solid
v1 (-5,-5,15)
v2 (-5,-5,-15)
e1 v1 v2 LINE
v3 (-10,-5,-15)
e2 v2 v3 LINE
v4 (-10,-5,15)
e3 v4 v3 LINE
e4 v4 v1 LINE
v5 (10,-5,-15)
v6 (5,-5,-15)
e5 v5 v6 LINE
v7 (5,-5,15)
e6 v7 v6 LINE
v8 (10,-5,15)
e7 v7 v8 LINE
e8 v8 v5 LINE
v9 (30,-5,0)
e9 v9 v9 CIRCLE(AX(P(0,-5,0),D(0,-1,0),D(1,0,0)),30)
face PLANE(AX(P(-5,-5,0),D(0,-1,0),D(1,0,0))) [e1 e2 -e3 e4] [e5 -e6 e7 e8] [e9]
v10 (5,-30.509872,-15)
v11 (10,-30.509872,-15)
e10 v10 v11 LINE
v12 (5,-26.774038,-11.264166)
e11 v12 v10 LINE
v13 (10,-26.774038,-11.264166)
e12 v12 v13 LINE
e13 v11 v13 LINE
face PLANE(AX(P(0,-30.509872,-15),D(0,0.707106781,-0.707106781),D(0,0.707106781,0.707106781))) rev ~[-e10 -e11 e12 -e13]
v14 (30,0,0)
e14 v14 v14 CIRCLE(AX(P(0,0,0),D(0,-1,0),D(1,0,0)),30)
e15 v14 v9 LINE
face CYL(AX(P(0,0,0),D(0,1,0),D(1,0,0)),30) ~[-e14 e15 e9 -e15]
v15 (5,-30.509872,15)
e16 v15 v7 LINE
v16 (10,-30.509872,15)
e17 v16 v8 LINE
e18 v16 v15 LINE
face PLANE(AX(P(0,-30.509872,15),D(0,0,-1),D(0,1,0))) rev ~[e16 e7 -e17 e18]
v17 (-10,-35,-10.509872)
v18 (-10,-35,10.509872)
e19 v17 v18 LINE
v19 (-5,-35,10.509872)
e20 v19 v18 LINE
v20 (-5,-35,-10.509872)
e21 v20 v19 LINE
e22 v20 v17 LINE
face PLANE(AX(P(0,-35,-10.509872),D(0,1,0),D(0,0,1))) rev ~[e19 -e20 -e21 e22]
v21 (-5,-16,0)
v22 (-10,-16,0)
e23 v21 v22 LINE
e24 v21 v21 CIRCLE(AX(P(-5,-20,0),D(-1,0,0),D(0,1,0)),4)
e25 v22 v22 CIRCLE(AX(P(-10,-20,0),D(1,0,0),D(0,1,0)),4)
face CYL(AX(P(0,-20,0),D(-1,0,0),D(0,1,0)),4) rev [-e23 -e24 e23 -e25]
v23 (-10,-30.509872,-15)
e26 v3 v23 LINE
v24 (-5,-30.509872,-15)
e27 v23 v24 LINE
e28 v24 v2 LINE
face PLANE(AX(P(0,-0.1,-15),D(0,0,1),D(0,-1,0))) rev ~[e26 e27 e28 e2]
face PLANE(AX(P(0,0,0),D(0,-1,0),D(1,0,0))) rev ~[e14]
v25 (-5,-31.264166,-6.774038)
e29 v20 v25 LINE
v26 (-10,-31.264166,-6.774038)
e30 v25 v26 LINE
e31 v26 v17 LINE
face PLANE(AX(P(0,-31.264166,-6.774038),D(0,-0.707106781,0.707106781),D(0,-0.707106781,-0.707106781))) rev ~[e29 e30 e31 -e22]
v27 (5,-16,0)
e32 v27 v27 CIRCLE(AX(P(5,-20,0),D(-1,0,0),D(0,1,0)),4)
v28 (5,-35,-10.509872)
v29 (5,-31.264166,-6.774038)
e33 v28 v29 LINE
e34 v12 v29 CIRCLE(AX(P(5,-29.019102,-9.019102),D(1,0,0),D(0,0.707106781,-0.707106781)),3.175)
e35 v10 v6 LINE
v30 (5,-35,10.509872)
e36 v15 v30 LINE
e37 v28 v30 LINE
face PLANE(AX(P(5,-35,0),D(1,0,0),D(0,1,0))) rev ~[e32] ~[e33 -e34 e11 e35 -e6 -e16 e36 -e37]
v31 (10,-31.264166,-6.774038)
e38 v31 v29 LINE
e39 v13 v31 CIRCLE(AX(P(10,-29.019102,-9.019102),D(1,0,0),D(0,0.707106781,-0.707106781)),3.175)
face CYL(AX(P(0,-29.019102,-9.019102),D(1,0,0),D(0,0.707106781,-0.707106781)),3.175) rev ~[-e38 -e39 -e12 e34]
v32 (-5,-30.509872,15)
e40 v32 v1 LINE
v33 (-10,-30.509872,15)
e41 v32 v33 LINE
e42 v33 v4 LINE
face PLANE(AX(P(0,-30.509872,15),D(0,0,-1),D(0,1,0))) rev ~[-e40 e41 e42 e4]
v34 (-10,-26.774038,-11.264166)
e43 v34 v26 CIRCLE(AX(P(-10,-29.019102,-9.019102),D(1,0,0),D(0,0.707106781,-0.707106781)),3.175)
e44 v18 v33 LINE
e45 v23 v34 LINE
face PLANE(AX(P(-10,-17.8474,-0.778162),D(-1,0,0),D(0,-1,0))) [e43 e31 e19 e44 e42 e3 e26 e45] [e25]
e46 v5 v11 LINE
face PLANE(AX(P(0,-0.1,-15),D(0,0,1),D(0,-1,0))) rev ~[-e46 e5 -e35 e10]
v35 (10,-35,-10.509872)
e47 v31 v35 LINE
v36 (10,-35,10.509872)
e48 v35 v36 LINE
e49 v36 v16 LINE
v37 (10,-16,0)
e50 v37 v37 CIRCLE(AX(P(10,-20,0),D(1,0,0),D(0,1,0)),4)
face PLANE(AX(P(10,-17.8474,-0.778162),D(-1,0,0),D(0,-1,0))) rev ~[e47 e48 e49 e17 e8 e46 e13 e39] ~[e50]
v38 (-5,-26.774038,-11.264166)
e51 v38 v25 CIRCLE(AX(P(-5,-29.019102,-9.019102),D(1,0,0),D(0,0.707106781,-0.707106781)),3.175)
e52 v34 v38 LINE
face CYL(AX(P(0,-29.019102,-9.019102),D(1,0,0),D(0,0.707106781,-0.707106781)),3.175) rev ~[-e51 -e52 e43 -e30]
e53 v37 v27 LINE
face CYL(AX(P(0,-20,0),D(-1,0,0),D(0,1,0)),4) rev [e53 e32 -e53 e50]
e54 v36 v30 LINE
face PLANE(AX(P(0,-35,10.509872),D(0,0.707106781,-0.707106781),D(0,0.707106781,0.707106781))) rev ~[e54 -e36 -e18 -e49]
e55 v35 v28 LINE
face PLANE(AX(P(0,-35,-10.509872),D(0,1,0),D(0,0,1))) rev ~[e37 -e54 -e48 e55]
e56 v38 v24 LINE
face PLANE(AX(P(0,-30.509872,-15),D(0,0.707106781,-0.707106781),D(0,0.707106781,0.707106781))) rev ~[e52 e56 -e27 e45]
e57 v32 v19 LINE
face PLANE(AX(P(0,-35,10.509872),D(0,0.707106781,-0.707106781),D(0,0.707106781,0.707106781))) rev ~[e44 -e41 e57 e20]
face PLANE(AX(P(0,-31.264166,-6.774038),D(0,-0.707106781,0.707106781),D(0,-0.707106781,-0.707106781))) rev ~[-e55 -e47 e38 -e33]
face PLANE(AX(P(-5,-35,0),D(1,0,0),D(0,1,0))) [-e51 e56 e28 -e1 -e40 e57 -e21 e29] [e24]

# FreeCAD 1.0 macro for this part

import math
import FreeCAD as App
import Part
import Sketcher
from FreeCAD import Vector
Q = App.Units.Quantity


def add_polygon(sketch, points):
    """Adds a closed chain of lines whose ends are joined by coincident constraints."""
    first, n = sketch.GeometryCount, len(points)
    for a, b in zip(points, points[1:] + points[:1]):
        sketch.addGeometry(Part.LineSegment(App.Vector(*a, 0), App.Vector(*b, 0)), False)
    for i in range(n):
        sketch.addConstraint(Sketcher.Constraint("Coincident", first + i, 2, first + (i + 1) % n, 1))

doc = App.newDocument("Part")
params = doc.addObject("Spreadsheet::Sheet", "Params")
for row, (alias, value) in enumerate([
    ("sketch1_diameter", "60 mm"),
    ("pad1_length", "5 mm"),
    ("sketch2_diameter", "8 mm"),
    ("sketch2_height", "30 mm"),
    ("pad2_length", "20 mm"),
    ("sketch3_width", "10 mm"),
    ("sketch3_height", "30 mm"),
    ("pocket1_length", "30 mm"),
], start=1):
    params.set(f"A{row}", alias)
    params.set(f"B{row}", "=" + value)
    params.setAlias(f"B{row}", alias)

body = doc.addObject("PartDesign::Body", "Body")

# Sketch on XZ plane
sketch1 = body.newObject("Sketcher::SketchObject", "Sketch")
sketch1.AttachmentSupport = (doc.getObject("XZ_Plane"), [""])
sketch1.MapMode = "FlatFace"
sketch1.addGeometry(Part.Circle(Vector(0, 0, 0), Vector(0, 0, 1), 30), False)
sketch1.addConstraint([
    Sketcher.Constraint("Coincident", 0, 3, -1, 1),
    Sketcher.Constraint("Diameter", 0, 60.0),
])
sketch1.setExpression("Constraints[1]", "Params.sketch1_diameter")
pad1 = body.newObject("PartDesign::Pad", "Pad")
pad1.Profile = sketch1
pad1.setExpression("Length", "Params.pad1_length")

# Sketch on YZ plane
sketch2 = body.newObject("Sketcher::SketchObject", "Sketch001")
sketch2.AttachmentSupport = (doc.getObject("YZ_Plane"), [""])
sketch2.MapMode = "FlatFace"
sketch2.addGeometry([
    Part.ArcOfCircle(Part.Circle(Vector(-29, -9, 0), Vector(0, 0, 1), 3.2), math.radians(-45), math.radians(135)),  # 0
    Part.LineSegment(Vector(-26.8, -11.3, 0), Vector(-30.5, -15, 0)),  # 1
    Part.LineSegment(Vector(-30.5, -15, 0), Vector(-0.1, -15, 0)),  # 2
    Part.LineSegment(Vector(-0.1, -15, 0), Vector(-0.1, 15, 0)),  # 3
    Part.LineSegment(Vector(-0.1, 15, 0), Vector(-30.5, 15, 0)),  # 4
    Part.LineSegment(Vector(-30.5, 15, 0), Vector(-35, 10.5, 0)),  # 5
    Part.LineSegment(Vector(-35, 10.5, 0), Vector(-35, -10.5, 0)),  # 6
    Part.LineSegment(Vector(-35, -10.5, 0), Vector(-31.3, -6.8, 0)),  # 7
    Part.Circle(Vector(-20, 0, 0), Vector(0, 0, 1), 4),  # 8
], False)
sketch2.addConstraint([
    Sketcher.Constraint("Tangent", 0, 1, 1, 1),
    Sketcher.Constraint("Coincident", 1, 2, 2, 1),
    Sketcher.Constraint("Coincident", 2, 2, 3, 1),
    Sketcher.Constraint("Coincident", 3, 2, 4, 1),
    Sketcher.Constraint("Coincident", 4, 2, 5, 1),
    Sketcher.Constraint("Coincident", 5, 2, 6, 1),
    Sketcher.Constraint("Coincident", 6, 2, 7, 1),
    Sketcher.Constraint("Tangent", 7, 2, 0, 2),
    Sketcher.Constraint("Horizontal", 2),
    Sketcher.Constraint("Vertical", 3),
    Sketcher.Constraint("Horizontal", 4),
    Sketcher.Constraint("Vertical", 6),
    Sketcher.Constraint("Symmetric", 1, 2, 4, 2, -1),
    Sketcher.Constraint("PointOnObject", 8, 3, -1),
    Sketcher.Constraint("Parallel", 1, 5),
    Sketcher.Constraint("Parallel", 5, 7),
    Sketcher.Constraint("Equal", 1, 7),
    Sketcher.Constraint("Diameter", 8, 8.0),
    Sketcher.Constraint("DistanceY", 3, 1, 3, 2, 30.0),
    Sketcher.Constraint("Angle", 1, Q("-135 deg")),
    Sketcher.Constraint("DistanceX", 8, 3, -1, 1, 20.0),
    Sketcher.Constraint("DistanceX", 5, 2, -1, 1, 35.0),
    Sketcher.Constraint("Radius", 0, 3.175),
    Sketcher.Constraint("DistanceX", 2, 2, -1, 1, 0.1),
    Sketcher.Constraint("DistanceX", 0, 3, -1, 1, 29.019102),
])
sketch2.setExpression("Constraints[17]", "Params.sketch2_diameter")
sketch2.setExpression("Constraints[18]", "Params.sketch2_height")
pad2 = body.newObject("PartDesign::Pad", "Pad001")
pad2.Profile = sketch2
pad2.setExpression("Length", "Params.pad2_length")
pad2.Midplane = True

# Sketch on XY plane
sketch3 = body.newObject("Sketcher::SketchObject", "Sketch002")
sketch3.AttachmentSupport = (doc.getObject("XY_Plane"), [""])
sketch3.MapMode = "FlatFace"
add_polygon(sketch3, [(-5, -5), (-5, -35), (5, -35), (5, -5)])  # lines 0-3
sketch3.addConstraint([
    Sketcher.Constraint("Vertical", 0),
    Sketcher.Constraint("Horizontal", 1),
    Sketcher.Constraint("Vertical", 2),
    Sketcher.Constraint("Horizontal", 3),
    Sketcher.Constraint("DistanceX", 1, 1, 1, 2, 10.0),
    Sketcher.Constraint("DistanceY", 0, 2, 0, 1, 30.0),
    Sketcher.Constraint("DistanceX", 0, 2, -1, 1, 5.0),
    Sketcher.Constraint("DistanceY", 0, 2, -1, 1, 35.0),
])
sketch3.setExpression("Constraints[8]", "Params.sketch3_width")
sketch3.setExpression("Constraints[9]", "Params.sketch3_height")
pocket1 = body.newObject("PartDesign::Pocket", "Pocket")
pocket1.Profile = sketch3
pocket1.setExpression("Length", "Params.pocket1_length")
pocket1.Midplane = True

doc.recompute()
